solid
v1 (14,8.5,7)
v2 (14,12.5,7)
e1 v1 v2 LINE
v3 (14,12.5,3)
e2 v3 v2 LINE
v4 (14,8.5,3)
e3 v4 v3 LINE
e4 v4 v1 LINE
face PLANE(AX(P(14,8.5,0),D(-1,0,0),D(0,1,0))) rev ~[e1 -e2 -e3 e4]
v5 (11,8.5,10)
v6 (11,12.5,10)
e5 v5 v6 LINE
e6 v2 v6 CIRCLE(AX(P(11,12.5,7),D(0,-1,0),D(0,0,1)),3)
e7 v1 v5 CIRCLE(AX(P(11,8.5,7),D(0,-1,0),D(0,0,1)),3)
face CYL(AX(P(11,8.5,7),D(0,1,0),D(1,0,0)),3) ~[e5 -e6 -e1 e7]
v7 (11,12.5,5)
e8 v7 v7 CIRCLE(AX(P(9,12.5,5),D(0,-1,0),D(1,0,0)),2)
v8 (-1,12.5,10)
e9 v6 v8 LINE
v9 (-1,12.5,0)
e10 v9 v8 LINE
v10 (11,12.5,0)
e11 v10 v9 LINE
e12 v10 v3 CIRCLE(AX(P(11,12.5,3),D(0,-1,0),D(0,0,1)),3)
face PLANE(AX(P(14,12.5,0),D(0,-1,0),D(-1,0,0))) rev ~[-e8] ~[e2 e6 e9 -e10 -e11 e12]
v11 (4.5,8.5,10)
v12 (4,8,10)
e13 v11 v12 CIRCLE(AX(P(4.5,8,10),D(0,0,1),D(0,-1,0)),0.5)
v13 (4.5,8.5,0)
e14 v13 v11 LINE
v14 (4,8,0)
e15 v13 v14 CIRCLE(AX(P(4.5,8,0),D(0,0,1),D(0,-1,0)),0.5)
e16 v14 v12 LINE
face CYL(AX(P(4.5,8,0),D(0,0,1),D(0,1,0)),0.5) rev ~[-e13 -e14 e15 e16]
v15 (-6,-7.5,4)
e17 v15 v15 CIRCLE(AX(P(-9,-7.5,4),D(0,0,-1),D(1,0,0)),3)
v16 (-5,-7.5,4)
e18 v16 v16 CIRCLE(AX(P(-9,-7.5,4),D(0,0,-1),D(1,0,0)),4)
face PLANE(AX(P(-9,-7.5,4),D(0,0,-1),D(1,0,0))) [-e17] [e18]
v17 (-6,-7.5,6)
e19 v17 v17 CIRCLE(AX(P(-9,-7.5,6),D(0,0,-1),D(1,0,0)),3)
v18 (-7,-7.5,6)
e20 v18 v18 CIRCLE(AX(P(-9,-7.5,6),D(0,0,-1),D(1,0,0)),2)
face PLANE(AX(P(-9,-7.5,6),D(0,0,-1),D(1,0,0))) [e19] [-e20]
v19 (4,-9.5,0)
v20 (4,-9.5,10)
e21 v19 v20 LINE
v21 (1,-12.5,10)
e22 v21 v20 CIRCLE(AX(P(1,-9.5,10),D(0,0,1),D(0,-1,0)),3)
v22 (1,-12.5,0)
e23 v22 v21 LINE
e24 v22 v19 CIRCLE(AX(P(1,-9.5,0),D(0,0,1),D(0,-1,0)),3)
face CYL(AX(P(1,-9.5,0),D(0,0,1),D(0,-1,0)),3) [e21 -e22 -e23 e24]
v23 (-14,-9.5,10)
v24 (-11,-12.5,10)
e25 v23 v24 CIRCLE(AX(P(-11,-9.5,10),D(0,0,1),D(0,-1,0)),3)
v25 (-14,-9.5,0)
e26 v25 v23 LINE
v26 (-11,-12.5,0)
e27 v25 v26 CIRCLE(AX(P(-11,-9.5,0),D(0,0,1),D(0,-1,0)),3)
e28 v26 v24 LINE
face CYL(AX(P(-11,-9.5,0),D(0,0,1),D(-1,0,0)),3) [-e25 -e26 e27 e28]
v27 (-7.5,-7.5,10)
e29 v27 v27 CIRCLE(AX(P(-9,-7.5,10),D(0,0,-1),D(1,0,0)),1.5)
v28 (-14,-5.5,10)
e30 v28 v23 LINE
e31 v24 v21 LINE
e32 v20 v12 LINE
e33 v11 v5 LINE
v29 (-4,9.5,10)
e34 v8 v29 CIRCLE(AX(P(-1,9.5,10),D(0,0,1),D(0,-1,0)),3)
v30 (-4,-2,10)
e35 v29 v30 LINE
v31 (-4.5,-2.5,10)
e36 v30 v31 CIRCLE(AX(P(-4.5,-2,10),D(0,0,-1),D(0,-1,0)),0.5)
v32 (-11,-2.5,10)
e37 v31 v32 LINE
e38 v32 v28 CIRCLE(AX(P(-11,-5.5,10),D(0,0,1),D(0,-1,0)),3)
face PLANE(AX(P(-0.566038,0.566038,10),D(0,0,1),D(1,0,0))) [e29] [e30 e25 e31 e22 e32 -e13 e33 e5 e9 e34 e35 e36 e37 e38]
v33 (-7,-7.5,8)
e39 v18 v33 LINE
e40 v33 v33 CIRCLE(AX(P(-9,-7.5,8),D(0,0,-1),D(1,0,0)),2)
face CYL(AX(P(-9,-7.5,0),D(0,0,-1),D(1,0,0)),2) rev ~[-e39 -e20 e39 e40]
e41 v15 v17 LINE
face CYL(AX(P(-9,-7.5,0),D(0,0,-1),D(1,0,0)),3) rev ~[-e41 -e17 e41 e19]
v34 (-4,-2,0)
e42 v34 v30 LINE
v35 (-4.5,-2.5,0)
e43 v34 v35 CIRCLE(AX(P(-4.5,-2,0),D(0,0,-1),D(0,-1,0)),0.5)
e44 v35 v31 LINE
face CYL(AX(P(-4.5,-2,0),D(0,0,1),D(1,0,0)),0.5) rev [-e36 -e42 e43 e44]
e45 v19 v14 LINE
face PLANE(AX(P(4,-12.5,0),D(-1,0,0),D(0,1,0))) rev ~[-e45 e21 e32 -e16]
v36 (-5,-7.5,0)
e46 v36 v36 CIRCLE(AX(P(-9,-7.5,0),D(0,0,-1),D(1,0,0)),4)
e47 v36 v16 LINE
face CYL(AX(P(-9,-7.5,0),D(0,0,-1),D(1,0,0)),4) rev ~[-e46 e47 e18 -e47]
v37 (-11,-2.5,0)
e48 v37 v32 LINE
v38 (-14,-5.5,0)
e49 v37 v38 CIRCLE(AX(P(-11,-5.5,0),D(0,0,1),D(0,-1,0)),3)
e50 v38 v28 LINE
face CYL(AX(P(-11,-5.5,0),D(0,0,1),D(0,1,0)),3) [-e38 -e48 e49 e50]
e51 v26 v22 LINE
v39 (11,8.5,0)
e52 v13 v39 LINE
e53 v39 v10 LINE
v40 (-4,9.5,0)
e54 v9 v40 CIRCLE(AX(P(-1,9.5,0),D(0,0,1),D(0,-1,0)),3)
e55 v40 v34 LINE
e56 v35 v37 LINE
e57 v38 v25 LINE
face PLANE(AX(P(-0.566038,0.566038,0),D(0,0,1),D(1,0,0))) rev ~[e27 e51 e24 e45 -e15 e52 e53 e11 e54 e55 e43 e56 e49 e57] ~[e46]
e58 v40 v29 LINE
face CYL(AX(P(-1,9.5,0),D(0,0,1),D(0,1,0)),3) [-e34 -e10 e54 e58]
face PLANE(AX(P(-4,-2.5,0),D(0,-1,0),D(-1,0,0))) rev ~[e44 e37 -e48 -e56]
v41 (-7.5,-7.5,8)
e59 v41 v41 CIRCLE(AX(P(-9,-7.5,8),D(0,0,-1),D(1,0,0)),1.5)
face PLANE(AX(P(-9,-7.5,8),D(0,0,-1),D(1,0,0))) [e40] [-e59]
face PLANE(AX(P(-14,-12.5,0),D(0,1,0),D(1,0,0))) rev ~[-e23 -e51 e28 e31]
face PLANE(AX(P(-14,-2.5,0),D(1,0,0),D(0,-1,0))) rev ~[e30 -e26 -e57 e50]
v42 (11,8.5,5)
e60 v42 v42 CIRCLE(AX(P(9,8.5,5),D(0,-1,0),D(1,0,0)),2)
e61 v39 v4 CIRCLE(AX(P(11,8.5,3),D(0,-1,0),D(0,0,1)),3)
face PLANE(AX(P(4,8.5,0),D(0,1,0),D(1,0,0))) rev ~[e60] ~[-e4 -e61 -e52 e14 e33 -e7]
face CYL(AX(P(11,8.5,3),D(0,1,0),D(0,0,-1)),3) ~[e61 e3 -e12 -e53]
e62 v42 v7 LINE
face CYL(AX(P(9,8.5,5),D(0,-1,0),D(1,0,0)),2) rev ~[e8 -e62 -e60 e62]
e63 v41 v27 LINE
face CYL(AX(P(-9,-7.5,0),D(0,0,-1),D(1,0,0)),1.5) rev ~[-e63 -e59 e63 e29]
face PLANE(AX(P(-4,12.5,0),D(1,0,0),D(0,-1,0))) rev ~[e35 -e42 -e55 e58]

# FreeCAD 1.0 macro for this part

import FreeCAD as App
import Part
import Sketcher

V = App.Vector


def edges_at(feature, points):
    """Names of the edges that pass closest to the given points."""
    edges = feature.Shape.Edges
    near = lambda p: min(range(len(edges)), key=lambda i: edges[i].distToShape(Part.Vertex(*p))[0])
    return sorted({f"Edge{near(p) + 1}" for p in points})


def add_polygon(sketch, points):
    """Adds a closed chain of lines whose ends are joined by coincident constraints."""
    first, n = sketch.GeometryCount, len(points)
    for a, b in zip(points, points[1:] + points[:1]):
        sketch.addGeometry(Part.LineSegment(App.Vector(*a, 0), App.Vector(*b, 0)), False)
    for i in range(n):
        sketch.addConstraint(Sketcher.Constraint("Coincident", first + i, 2, first + (i + 1) % n, 1))

doc = App.newDocument("Part")
body = doc.addObject("PartDesign::Body", "Body")

# Sketch on XY plane
sketch1 = doc.addObject("Sketcher::SketchObject", "Sketch")
body.addObject(sketch1)
sketch1.AttachmentSupport = (doc.XY_Plane, [""])
sketch1.MapMode = "FlatFace"
add_polygon(sketch1, [(14, 12.5), (-4, 12.5), (-4, -2.5), (-14, -2.5), (-14, -12.5), (4, -12.5), (4, 8.5), (14, 8.5)])  # lines 0-7
sketch1.addConstraint([
    Sketcher.Constraint("Horizontal", 0),
    Sketcher.Constraint("Vertical", 1),
    Sketcher.Constraint("Horizontal", 2),
    Sketcher.Constraint("Vertical", 3),
    Sketcher.Constraint("Horizontal", 4),
    Sketcher.Constraint("Vertical", 5),
    Sketcher.Constraint("Horizontal", 6),
    Sketcher.Constraint("Vertical", 7),
    Sketcher.Constraint("Symmetric", 0, 2, 4, 2, -1, 1),
    Sketcher.Constraint("Equal", 0, 4),
    Sketcher.Constraint("Equal", 6, 3),
    Sketcher.Constraint("DistanceX", 0, 2, 0, 1, 18.0),
    Sketcher.Constraint("DistanceX", 2, 2, 2, 1, 10.0),
    Sketcher.Constraint("DistanceY", 1, 2, 1, 1, 15.0),
    Sketcher.Constraint("DistanceY", 5, 1, 5, 2, 21.0),
])
pad1 = doc.addObject("PartDesign::Pad", "Pad")
body.addObject(pad1)
pad1.Profile = sketch1
pad1.Length = 10
doc.recompute()

fillet = doc.addObject("PartDesign::Fillet", "Fillet")
body.addObject(fillet)
fillet.Base = (pad1, edges_at(pad1, [(-4, 12.5, 5), (4, -12.5, 5)]))
fillet.Radius = 3

# Sketch on XY plane
sketch2 = doc.addObject("Sketcher::SketchObject", "Sketch001")
body.addObject(sketch2)
sketch2.AttachmentSupport = (doc.XY_Plane, [""])
sketch2.MapMode = "FlatFace"
sketch2.addGeometry(Part.Circle(V(-9, -7.5, 0), V(0, 0, 1), 1.5), False)
sketch2.addConstraint([
    Sketcher.Constraint("Diameter", 0, 3.0),
    Sketcher.Constraint("DistanceX", 0, 3, -1, 1, 9.0),
    Sketcher.Constraint("DistanceY", 0, 3, -1, 1, 7.5),
])
pocket1 = doc.addObject("PartDesign::Pocket", "Pocket")
body.addObject(pocket1)
pocket1.Profile = sketch2
pocket1.Type = "ThroughAll"
pocket1.Reversed = True

# Sketch on XY plane
sketch3 = doc.addObject("Sketcher::SketchObject", "Sketch002")
body.addObject(sketch3)
sketch3.AttachmentSupport = (doc.XY_Plane, [""])
sketch3.MapMode = "FlatFace"
sketch3.addGeometry(Part.Circle(V(-9, -7.5, 0), V(0, 0, 1), 2), False)
sketch3.addConstraint([
    Sketcher.Constraint("Diameter", 0, 4.0),
    Sketcher.Constraint("DistanceX", 0, 3, -1, 1, 9.0),
    Sketcher.Constraint("DistanceY", 0, 3, -1, 1, 7.5),
])
pocket2 = doc.addObject("PartDesign::Pocket", "Pocket001")
body.addObject(pocket2)
pocket2.Profile = sketch3
pocket2.Length = 8
pocket2.Reversed = True

# Sketch on XY plane
sketch4 = doc.addObject("Sketcher::SketchObject", "Sketch003")
body.addObject(sketch4)
sketch4.AttachmentSupport = (doc.XY_Plane, [""])
sketch4.MapMode = "FlatFace"
sketch4.addGeometry(Part.Circle(V(-9, -7.5, 0), V(0, 0, 1), 3), False)
sketch4.addConstraint([
    Sketcher.Constraint("Diameter", 0, 6.0),
    Sketcher.Constraint("DistanceX", 0, 3, -1, 1, 9.0),
    Sketcher.Constraint("DistanceY", 0, 3, -1, 1, 7.5),
])
pocket3 = doc.addObject("PartDesign::Pocket", "Pocket002")
body.addObject(pocket3)
pocket3.Profile = sketch4
pocket3.Length = 6
pocket3.Reversed = True

# Sketch on XY plane
sketch5 = doc.addObject("Sketcher::SketchObject", "Sketch004")
body.addObject(sketch5)
sketch5.AttachmentSupport = (doc.XY_Plane, [""])
sketch5.MapMode = "FlatFace"
sketch5.addGeometry(Part.Circle(V(-9, -7.5, 0), V(0, 0, 1), 4), False)
sketch5.addConstraint([
    Sketcher.Constraint("Diameter", 0, 8.0),
    Sketcher.Constraint("DistanceX", 0, 3, -1, 1, 9.0),
    Sketcher.Constraint("DistanceY", 0, 3, -1, 1, 7.5),
])
pocket4 = doc.addObject("PartDesign::Pocket", "Pocket003")
body.addObject(pocket4)
pocket4.Profile = sketch5
pocket4.Length = 4
pocket4.Reversed = True
doc.recompute()

fillet2 = doc.addObject("PartDesign::Fillet", "Fillet001")
body.addObject(fillet2)
fillet2.Base = (pocket4, edges_at(pocket4, [(-14, -2.5, 5), (-14, -12.5, 5)]))
fillet2.Radius = 3

# Sketch on XZ plane
sketch6 = doc.addObject("Sketcher::SketchObject", "Sketch005")
body.addObject(sketch6)
sketch6.AttachmentSupport = (doc.XZ_Plane, [""])
sketch6.MapMode = "FlatFace"
sketch6.AttachmentOffset = App.Placement(V(0, 0, -8.5), App.Rotation())
sketch6.addGeometry(Part.Circle(V(9, 5, 0), V(0, 0, 1), 2), False)
sketch6.addConstraint([
    Sketcher.Constraint("Diameter", 0, 4.0),
    Sketcher.Constraint("DistanceX", -1, 1, 0, 3, 9.0),
    Sketcher.Constraint("DistanceY", -1, 1, 0, 3, 5.0),
])
pocket5 = doc.addObject("PartDesign::Pocket", "Pocket004")
body.addObject(pocket5)
pocket5.Profile = sketch6
pocket5.Type = "ThroughAll"
doc.recompute()

fillet3 = doc.addObject("PartDesign::Fillet", "Fillet002")
body.addObject(fillet3)
fillet3.Base = (pocket5, edges_at(pocket5, [(14, 10.5, 0), (14, 10.5, 10)]))
fillet3.Radius = 3
doc.recompute()

fillet4 = doc.addObject("PartDesign::Fillet", "Fillet003")
body.addObject(fillet4)
fillet4.Base = (fillet3, edges_at(fillet3, [(4, 8.5, 5), (-4, -2.5, 5)]))
fillet4.Radius = 0.5

doc.recompute()
